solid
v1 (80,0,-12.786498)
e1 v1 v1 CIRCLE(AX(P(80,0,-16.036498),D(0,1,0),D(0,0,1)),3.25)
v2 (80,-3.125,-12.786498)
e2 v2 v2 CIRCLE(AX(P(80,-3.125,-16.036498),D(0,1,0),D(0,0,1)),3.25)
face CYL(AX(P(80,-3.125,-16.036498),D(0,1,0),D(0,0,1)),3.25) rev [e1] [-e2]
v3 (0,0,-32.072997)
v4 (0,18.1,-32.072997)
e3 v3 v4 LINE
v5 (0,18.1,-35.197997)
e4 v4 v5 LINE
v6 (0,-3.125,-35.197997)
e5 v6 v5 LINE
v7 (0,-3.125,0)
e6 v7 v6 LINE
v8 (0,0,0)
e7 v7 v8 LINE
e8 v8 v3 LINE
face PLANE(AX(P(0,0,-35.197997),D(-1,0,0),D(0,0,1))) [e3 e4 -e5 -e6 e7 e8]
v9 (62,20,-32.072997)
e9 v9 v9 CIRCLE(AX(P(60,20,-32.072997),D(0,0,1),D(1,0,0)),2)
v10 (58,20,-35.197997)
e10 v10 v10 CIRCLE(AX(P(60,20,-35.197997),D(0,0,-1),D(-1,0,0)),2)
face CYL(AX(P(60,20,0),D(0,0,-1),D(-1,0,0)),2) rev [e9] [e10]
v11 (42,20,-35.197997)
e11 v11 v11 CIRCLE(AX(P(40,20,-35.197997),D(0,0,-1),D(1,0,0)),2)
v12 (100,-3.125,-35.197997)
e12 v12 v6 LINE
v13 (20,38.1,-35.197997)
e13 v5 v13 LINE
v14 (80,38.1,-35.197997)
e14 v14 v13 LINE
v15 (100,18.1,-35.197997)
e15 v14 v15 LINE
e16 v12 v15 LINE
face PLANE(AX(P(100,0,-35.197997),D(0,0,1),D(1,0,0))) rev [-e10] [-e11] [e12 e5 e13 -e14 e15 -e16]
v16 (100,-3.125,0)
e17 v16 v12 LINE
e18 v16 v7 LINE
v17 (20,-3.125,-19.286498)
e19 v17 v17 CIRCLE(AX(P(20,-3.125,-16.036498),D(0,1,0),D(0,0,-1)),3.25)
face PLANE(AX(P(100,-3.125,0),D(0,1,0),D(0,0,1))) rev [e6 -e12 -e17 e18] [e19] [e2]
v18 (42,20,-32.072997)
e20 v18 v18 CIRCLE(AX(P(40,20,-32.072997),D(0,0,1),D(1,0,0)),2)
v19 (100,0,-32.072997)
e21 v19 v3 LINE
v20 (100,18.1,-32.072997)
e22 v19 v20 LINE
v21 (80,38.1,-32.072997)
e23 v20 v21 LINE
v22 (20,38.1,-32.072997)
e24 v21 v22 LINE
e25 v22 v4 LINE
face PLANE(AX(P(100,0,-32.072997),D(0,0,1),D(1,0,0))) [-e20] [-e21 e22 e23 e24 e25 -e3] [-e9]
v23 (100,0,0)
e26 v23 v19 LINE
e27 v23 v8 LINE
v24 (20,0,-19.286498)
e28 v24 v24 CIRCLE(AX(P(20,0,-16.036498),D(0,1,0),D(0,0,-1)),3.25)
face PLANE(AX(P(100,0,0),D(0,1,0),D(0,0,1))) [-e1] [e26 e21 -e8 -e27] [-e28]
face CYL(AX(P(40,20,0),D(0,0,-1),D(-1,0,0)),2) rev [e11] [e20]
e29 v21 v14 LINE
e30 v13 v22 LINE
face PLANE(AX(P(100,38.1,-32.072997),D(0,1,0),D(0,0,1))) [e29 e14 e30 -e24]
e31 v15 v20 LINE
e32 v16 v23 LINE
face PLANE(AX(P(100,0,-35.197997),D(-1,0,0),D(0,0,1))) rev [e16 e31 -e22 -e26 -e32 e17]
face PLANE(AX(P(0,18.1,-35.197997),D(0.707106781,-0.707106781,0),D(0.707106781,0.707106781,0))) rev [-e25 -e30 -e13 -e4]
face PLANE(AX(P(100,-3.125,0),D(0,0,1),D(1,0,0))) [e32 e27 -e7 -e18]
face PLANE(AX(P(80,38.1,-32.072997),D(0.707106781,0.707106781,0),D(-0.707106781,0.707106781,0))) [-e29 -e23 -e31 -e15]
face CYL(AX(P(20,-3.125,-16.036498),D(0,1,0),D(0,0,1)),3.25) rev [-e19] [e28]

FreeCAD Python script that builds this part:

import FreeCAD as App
import Part
import Sketcher

V = App.Vector
Q = App.Units.Quantity


def edges_at(feature, points):
    """Names of the edges that pass closest to the given points."""
    edges = feature.Shape.Edges
    near = lambda p: min(range(len(edges)), key=lambda i: edges[i].distToShape(Part.Vertex(*p))[0])
    return sorted({f"Edge{near(p) + 1}" for p in points})


def add_polygon(sketch, points):
    """Adds a closed chain of lines whose ends are joined by coincident constraints."""
    first, n = sketch.GeometryCount, len(points)
    for a, b in zip(points, points[1:] + points[:1]):
        sketch.addGeometry(Part.LineSegment(App.Vector(*a, 0), App.Vector(*b, 0)), False)
    for i in range(n):
        sketch.addConstraint(Sketcher.Constraint("Coincident", first + i, 2, first + (i + 1) % n, 1))

doc = App.newDocument("Part")
params = doc.addObject("Spreadsheet::Sheet", "Params")
for row, (alias, value) in enumerate([
    ("sketch1_width", "38.1 mm"),
    ("pad1_length", "100 mm"),
    ("sketch2_diameter", "4 mm"),
    ("chamfer_size", "20 mm"),
    ("sketch3_diameter", "6.5 mm"),
], start=1):
    params.set(f"A{row}", alias)
    params.set(f"B{row}", "=" + value)
    params.setAlias(f"B{row}", alias)

body = doc.addObject("PartDesign::Body", "Body")

# Sketch on YZ plane
sketch1 = body.newObject("Sketcher::SketchObject", "Sketch")
sketch1.AttachmentSupport = (doc.getObject("YZ_Plane"), [""])
sketch1.MapMode = "FlatFace"
add_polygon(sketch1, [(0, -32.1), (0, 0), (-3.1, 0), (-3.1, -35.2), (38.1, -35.2), (38.1, -32.1)])  # lines 0-5
sketch1.addConstraint([
    Sketcher.Constraint("Vertical", 0),
    Sketcher.Constraint("Horizontal", 1),
    Sketcher.Constraint("Vertical", 2),
    Sketcher.Constraint("Horizontal", 3),
    Sketcher.Constraint("Vertical", 4),
    Sketcher.Constraint("Horizontal", 5),
    Sketcher.Constraint("Coincident", 0, 2, -1, 1),
    Sketcher.Constraint("Equal", 1, 4),
    Sketcher.Constraint("DistanceX", 5, 2, 5, 1, Q("38.1 mm")),
    Sketcher.Constraint("DistanceX", 1, 2, 1, 1, Q("3.125 mm")),
    Sketcher.Constraint("DistanceY", 0, 1, 0, 2, Q("32.072997 mm")),
])
sketch1.setExpression("Constraints[14]", "Params.sketch1_width")
pad1 = body.newObject("PartDesign::Pad", "Pad")
pad1.Profile = sketch1
pad1.setExpression("Length", "Params.pad1_length")

# Sketch on XY plane
sketch2 = body.newObject("Sketcher::SketchObject", "Sketch001")
sketch2.AttachmentSupport = (doc.getObject("XY_Plane"), [""])
sketch2.MapMode = "FlatFace"
sketch2.AttachmentOffset = App.Placement(V(0, 0, -35.197997), App.Rotation())
sketch2.addGeometry([
    Part.Circle(V(40, 20, 0), V(0, 0, 1), 2),
    Part.Circle(V(60, 20, 0), V(0, 0, 1), 2),
], False)
sketch2.addConstraint([
    Sketcher.Constraint("Equal", 0, 1),
    Sketcher.Constraint("Horizontal", 0, 3, 1, 3),
    Sketcher.Constraint("Diameter", 0, Q("4 mm")),
    Sketcher.Constraint("DistanceX", -1, 1, 0, 3, Q("40 mm")),
    Sketcher.Constraint("DistanceY", -1, 1, 0, 3, Q("20 mm")),
    Sketcher.Constraint("DistanceX", -1, 1, 1, 3, Q("60 mm")),
])
sketch2.setExpression("Constraints[2]", "Params.sketch2_diameter")
pocket1 = body.newObject("PartDesign::Pocket", "Pocket")
pocket1.Profile = sketch2
pocket1.Type = "ThroughAll"
pocket1.Reversed = True
doc.recompute()

chamfer = body.newObject("PartDesign::Chamfer", "Chamfer")
chamfer.Base = (pocket1, edges_at(pocket1, [(0, 38.1, -33.635), (100, 38.1, -33.635)]))
chamfer.setExpression("Size", "Params.chamfer_size")

# Sketch on XZ plane
sketch3 = body.newObject("Sketcher::SketchObject", "Sketch002")
sketch3.AttachmentSupport = (doc.getObject("XZ_Plane"), [""])
sketch3.MapMode = "FlatFace"
sketch3.addGeometry([
    Part.Circle(V(80, -16, 0), V(0, 0, 1), 3.2),
    Part.Circle(V(20, -16, 0), V(0, 0, 1), 3.2),
], False)
sketch3.addConstraint([
    Sketcher.Constraint("Equal", 0, 1),
    Sketcher.Constraint("Horizontal", 0, 3, 1, 3),
    Sketcher.Constraint("Diameter", 0, Q("6.5 mm")),
    Sketcher.Constraint("DistanceX", -1, 1, 0, 3, Q("80 mm")),
    Sketcher.Constraint("DistanceX", -1, 1, 1, 3, Q("20 mm")),
    Sketcher.Constraint("DistanceY", 0, 3, -1, 1, Q("16.036498 mm")),
])
sketch3.setExpression("Constraints[2]", "Params.sketch3_diameter")
pocket2 = body.newObject("PartDesign::Pocket", "Pocket001")
pocket2.Profile = sketch3
pocket2.Type = "ThroughAll"
pocket2.Reversed = True

doc.recompute()
